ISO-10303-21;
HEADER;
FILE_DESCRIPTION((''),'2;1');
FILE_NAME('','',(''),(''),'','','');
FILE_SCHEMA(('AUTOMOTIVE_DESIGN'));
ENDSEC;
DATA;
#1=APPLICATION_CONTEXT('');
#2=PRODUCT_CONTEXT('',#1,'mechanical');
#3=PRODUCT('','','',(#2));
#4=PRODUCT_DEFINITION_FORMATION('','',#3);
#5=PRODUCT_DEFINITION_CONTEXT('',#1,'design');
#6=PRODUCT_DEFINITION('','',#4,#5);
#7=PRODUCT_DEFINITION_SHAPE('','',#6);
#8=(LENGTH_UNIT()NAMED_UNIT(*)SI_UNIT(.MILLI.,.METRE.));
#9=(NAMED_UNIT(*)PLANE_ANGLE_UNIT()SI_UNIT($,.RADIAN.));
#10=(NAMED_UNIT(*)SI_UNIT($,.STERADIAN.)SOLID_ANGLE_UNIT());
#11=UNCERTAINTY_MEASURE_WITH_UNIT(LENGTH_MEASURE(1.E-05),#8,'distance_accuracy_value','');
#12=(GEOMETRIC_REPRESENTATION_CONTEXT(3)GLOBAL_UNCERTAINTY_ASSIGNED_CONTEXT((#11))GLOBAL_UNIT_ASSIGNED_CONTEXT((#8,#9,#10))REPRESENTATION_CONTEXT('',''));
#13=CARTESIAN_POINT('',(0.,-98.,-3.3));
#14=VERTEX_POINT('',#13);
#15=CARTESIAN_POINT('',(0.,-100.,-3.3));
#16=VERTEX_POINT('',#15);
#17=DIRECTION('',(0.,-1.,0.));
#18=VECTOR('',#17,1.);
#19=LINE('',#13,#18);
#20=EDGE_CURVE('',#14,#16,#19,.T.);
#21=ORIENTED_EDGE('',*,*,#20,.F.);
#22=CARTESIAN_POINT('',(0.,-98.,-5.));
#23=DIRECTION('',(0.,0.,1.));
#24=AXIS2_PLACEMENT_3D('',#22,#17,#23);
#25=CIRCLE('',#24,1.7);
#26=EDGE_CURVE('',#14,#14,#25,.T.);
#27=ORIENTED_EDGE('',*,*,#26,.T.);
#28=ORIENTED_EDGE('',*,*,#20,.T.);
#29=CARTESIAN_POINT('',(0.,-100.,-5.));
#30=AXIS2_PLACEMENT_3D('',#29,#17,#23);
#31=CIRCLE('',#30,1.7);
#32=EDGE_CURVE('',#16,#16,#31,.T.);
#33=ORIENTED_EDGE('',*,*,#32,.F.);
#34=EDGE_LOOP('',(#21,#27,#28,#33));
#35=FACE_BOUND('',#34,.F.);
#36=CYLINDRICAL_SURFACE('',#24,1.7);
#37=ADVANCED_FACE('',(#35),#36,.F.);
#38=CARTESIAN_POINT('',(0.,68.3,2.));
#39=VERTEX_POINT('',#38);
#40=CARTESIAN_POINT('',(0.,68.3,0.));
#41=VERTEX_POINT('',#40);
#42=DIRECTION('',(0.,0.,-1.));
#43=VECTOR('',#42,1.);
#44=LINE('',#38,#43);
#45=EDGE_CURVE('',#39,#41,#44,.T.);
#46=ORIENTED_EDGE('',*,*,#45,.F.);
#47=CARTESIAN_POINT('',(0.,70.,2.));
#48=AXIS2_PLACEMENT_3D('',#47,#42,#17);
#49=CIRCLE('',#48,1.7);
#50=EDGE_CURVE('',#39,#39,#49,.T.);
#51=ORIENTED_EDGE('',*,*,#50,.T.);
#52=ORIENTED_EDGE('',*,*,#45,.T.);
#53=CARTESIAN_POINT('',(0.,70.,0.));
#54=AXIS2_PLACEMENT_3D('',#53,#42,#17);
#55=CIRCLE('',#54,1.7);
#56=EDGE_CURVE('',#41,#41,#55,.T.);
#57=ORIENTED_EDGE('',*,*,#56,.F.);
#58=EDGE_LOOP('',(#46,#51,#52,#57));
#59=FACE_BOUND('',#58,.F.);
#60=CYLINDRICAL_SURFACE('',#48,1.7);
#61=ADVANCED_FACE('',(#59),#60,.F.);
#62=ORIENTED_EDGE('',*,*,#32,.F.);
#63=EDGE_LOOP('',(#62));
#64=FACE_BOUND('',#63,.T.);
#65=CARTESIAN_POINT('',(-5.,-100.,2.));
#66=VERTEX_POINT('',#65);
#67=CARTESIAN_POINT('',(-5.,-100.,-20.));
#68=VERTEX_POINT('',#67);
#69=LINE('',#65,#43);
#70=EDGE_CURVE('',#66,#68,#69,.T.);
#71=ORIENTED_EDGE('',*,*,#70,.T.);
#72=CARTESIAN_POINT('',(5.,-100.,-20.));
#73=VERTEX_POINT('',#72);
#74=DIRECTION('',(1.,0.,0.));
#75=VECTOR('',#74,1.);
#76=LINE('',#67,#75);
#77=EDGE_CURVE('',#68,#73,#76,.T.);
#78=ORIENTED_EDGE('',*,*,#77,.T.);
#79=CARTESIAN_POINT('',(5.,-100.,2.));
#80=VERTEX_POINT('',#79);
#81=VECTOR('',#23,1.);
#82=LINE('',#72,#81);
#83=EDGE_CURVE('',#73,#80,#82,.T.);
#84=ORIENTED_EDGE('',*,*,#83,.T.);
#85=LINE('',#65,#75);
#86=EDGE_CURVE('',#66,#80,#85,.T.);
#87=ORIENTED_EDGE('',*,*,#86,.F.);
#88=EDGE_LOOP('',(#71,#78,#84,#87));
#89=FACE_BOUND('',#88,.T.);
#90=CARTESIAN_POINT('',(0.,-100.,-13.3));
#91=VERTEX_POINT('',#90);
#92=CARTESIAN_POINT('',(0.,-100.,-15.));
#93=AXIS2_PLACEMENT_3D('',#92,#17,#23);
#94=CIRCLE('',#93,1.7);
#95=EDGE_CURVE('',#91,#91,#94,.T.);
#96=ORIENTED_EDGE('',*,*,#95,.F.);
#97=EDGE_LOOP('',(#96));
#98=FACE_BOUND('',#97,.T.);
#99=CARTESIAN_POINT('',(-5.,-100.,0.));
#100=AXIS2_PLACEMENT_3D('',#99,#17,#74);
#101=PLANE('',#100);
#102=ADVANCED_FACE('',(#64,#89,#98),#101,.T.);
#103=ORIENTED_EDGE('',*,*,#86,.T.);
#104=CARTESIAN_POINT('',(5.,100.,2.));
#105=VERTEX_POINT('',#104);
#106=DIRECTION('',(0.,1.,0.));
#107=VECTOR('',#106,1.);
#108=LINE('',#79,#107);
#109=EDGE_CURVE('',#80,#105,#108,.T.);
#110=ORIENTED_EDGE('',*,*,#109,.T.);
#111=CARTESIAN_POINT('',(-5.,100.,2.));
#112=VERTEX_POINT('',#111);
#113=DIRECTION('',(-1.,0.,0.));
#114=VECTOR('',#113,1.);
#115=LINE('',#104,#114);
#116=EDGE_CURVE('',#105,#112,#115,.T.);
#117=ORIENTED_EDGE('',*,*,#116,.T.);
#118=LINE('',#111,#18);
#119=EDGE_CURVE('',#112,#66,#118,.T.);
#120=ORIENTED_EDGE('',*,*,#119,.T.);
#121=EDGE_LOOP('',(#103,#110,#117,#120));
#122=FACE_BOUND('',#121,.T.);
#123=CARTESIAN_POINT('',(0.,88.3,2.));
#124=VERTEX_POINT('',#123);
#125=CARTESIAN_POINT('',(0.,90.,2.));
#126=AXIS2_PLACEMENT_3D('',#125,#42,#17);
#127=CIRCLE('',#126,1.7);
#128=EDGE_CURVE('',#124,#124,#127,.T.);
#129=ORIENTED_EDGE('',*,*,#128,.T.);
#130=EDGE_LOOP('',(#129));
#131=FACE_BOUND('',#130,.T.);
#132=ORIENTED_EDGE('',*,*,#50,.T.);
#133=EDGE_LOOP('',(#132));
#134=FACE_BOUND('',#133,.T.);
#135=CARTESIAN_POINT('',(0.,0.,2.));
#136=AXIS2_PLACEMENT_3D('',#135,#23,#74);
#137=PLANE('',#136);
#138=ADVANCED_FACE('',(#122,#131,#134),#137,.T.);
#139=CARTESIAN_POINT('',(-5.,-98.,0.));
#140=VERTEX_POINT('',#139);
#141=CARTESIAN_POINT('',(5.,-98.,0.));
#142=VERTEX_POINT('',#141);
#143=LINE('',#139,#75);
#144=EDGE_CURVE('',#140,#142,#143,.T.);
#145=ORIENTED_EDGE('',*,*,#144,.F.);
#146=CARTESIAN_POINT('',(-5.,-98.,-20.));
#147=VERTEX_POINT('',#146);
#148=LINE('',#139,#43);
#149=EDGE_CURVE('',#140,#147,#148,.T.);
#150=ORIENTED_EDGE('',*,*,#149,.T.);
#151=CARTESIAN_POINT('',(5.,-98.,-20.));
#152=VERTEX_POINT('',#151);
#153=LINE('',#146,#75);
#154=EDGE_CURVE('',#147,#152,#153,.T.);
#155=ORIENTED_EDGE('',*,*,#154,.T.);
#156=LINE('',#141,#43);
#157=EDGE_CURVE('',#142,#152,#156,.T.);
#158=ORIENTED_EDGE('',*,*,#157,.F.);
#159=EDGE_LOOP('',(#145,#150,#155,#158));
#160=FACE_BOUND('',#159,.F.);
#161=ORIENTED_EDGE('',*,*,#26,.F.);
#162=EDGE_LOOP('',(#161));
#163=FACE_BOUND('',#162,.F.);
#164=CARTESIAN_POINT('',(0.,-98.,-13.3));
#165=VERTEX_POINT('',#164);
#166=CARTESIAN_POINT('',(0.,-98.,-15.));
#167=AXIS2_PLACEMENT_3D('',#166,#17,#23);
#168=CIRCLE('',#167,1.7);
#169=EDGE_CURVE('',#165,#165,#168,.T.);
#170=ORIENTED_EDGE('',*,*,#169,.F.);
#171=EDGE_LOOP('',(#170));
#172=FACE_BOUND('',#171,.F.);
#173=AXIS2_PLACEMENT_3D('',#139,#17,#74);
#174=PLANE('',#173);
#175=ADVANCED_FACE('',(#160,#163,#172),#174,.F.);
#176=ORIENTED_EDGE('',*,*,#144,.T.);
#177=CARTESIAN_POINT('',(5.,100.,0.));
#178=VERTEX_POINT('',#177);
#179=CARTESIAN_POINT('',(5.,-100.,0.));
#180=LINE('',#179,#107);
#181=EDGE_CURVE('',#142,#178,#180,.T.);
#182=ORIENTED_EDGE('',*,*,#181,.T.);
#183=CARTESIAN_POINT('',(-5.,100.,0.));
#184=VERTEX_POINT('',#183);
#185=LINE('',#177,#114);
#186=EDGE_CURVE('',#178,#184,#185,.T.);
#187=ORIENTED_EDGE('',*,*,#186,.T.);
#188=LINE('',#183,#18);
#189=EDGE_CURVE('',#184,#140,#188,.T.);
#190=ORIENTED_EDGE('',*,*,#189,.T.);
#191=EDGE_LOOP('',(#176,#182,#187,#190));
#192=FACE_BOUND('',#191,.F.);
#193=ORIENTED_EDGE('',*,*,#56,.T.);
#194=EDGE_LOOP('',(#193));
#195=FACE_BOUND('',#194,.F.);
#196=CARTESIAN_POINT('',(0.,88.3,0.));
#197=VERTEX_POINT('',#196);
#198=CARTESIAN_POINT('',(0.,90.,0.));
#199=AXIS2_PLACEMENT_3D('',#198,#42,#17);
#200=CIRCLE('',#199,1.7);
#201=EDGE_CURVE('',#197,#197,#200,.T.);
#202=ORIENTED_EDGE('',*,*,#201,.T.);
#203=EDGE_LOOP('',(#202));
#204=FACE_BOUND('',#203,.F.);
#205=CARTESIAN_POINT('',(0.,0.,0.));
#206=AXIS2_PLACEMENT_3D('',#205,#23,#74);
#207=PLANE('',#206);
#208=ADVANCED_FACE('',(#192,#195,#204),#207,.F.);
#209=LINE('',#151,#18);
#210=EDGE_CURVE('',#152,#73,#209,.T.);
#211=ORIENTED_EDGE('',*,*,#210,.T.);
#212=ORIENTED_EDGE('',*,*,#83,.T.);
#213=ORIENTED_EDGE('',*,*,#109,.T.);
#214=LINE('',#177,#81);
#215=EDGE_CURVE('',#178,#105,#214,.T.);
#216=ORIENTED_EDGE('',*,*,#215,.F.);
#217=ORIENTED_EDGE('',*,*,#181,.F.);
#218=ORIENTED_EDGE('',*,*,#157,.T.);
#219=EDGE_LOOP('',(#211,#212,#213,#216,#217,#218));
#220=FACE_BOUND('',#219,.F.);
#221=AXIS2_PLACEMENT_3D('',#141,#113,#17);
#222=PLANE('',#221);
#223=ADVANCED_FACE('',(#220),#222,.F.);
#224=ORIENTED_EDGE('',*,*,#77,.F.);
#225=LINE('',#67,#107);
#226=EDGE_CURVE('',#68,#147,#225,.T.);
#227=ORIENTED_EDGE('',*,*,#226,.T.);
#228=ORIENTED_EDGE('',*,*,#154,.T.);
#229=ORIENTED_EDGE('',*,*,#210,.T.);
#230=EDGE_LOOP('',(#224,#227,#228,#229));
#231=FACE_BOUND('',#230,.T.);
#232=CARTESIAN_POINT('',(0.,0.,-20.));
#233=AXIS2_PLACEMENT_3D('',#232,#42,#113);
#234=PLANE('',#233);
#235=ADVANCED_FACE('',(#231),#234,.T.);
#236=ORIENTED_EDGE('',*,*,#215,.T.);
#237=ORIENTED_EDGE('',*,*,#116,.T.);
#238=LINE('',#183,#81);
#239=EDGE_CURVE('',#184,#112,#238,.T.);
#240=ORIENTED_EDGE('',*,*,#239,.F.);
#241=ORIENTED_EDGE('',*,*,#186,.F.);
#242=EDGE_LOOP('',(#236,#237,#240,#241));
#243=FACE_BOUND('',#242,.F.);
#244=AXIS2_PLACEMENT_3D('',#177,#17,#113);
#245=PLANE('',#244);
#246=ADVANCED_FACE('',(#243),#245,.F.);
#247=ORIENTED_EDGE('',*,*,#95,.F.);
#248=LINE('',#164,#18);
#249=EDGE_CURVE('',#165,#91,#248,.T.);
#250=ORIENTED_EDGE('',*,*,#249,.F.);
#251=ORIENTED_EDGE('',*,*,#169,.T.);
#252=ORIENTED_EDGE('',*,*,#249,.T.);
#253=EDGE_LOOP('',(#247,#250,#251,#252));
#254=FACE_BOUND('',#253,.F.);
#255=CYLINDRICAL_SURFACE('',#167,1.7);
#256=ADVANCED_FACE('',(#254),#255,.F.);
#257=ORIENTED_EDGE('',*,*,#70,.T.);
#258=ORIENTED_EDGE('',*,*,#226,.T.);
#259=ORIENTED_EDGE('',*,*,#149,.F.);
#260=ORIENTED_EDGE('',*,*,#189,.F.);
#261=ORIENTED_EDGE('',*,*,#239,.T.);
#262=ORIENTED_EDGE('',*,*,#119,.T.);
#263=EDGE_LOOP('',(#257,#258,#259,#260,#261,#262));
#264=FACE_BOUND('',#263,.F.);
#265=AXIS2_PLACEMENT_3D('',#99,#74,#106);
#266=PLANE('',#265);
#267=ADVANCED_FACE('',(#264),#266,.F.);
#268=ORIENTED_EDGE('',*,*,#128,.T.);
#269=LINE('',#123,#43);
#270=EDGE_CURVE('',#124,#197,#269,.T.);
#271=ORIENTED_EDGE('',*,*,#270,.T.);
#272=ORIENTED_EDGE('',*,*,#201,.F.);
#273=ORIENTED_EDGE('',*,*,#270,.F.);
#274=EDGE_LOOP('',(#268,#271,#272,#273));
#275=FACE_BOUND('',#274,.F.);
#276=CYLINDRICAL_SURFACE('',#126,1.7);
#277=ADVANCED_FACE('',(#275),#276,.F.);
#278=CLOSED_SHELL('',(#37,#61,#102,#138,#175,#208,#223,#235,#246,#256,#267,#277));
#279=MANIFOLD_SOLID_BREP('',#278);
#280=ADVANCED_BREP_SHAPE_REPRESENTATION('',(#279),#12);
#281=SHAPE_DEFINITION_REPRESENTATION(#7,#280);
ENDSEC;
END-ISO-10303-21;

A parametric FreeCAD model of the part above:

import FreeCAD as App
import Part
import Sketcher
from FreeCAD import Vector

doc = App.newDocument("Part")
body = doc.addObject("PartDesign::Body", "Body")

# Sketch on XY plane
sketch1 = body.newObject("Sketcher::SketchObject", "Sketch")
sketch1.AttachmentSupport = (doc.getObject("XY_Plane"), [""])
sketch1.MapMode = "FlatFace"
sketch1.addGeometry([
    Part.LineSegment(Vector(-5, 100, 0), Vector(-5, -100, 0)),
    Part.LineSegment(Vector(-5, -100, 0), Vector(5, -100, 0)),
    Part.LineSegment(Vector(5, -100, 0), Vector(5, 100, 0)),
    Part.LineSegment(Vector(5, 100, 0), Vector(-5, 100, 0)),
], False)
sketch1.addConstraint([
    Sketcher.Constraint("Coincident", 0, 2, 1, 1),
    Sketcher.Constraint("Coincident", 1, 2, 2, 1),
    Sketcher.Constraint("Coincident", 2, 2, 3, 1),
    Sketcher.Constraint("Coincident", 3, 2, 0, 1),
    Sketcher.Constraint("Vertical", 0),
    Sketcher.Constraint("Horizontal", 1),
    Sketcher.Constraint("Vertical", 2),
    Sketcher.Constraint("Horizontal", 3),
    Sketcher.Constraint("Symmetric", 0, 2, 2, 2, -1, 1),
    Sketcher.Constraint("DistanceX", 1, 1, 1, 2, 10.0),
    Sketcher.Constraint("DistanceY", 0, 2, 0, 1, 200.0),
])
pad1 = body.newObject("PartDesign::Pad", "Pad")
pad1.Profile = sketch1
pad1.Length = 2

# Sketch on XY plane
sketch2 = body.newObject("Sketcher::SketchObject", "Sketch001")
sketch2.AttachmentSupport = (doc.getObject("XY_Plane"), [""])
sketch2.MapMode = "FlatFace"
sketch2.AttachmentOffset = App.Placement(Vector(0, 0, 2), App.Rotation())
sketch2.addGeometry([
    Part.Circle(Vector(0, 90, 0), Vector(0, 0, 1), 1.7),
    Part.Circle(Vector(0, 70, 0), Vector(0, 0, 1), 1.7),
], False)
sketch2.addConstraint([
    Sketcher.Constraint("Equal", 0, 1),
    Sketcher.Constraint("PointOnObject", 0, 3, -2),
    Sketcher.Constraint("PointOnObject", 1, 3, -2),
    Sketcher.Constraint("Diameter", 0, 3.4),
    Sketcher.Constraint("DistanceY", -1, 1, 0, 3, 90.0),
    Sketcher.Constraint("DistanceY", -1, 1, 1, 3, 70.0),
])
doc.recompute()
hole = body.newObject("PartDesign::Hole", "Hole")
hole.Profile = sketch2
hole.ThreadType = "None"
hole.Diameter = 3.4
hole.DepthType = "ThroughAll"

# Sketch on XY plane
sketch3 = body.newObject("Sketcher::SketchObject", "Sketch002")
sketch3.AttachmentSupport = (doc.getObject("XY_Plane"), [""])
sketch3.MapMode = "FlatFace"
sketch3.addGeometry([
    Part.LineSegment(Vector(5, -100, 0), Vector(-5, -100, 0)),
    Part.LineSegment(Vector(-5, -100, 0), Vector(-5, -98, 0)),
    Part.LineSegment(Vector(-5, -98, 0), Vector(5, -98, 0)),
    Part.LineSegment(Vector(5, -98, 0), Vector(5, -100, 0)),
], False)
sketch3.addConstraint([
    Sketcher.Constraint("Coincident", 0, 2, 1, 1),
    Sketcher.Constraint("Coincident", 1, 2, 2, 1),
    Sketcher.Constraint("Coincident", 2, 2, 3, 1),
    Sketcher.Constraint("Coincident", 3, 2, 0, 1),
    Sketcher.Constraint("Horizontal", 0),
    Sketcher.Constraint("Vertical", 1),
    Sketcher.Constraint("Horizontal", 2),
    Sketcher.Constraint("Vertical", 3),
    Sketcher.Constraint("DistanceY", 1, 1, 1, 2, 2.0),
    Sketcher.Constraint("DistanceX", 0, 2, 0, 1, 10.0),
    Sketcher.Constraint("DistanceX", 0, 2, -1, 1, 5.0),
    Sketcher.Constraint("DistanceY", 0, 2, -1, 1, 100.0),
])
pad2 = body.newObject("PartDesign::Pad", "Pad001")
pad2.Profile = sketch3
pad2.Length = 20
pad2.Reversed = True

# Sketch on XZ plane
sketch4 = body.newObject("Sketcher::SketchObject", "Sketch003")
sketch4.AttachmentSupport = (doc.getObject("XZ_Plane"), [""])
sketch4.MapMode = "FlatFace"
sketch4.AttachmentOffset = App.Placement(Vector(0, 0, 98), App.Rotation())
sketch4.addGeometry([
    Part.Circle(Vector(0, -15, 0), Vector(0, 0, 1), 1.7),
    Part.Circle(Vector(0, -5, 0), Vector(0, 0, 1), 1.7),
], False)
sketch4.addConstraint([
    Sketcher.Constraint("Equal", 0, 1),
    Sketcher.Constraint("PointOnObject", 0, 3, -2),
    Sketcher.Constraint("PointOnObject", 1, 3, -2),
    Sketcher.Constraint("Diameter", 0, 3.4),
    Sketcher.Constraint("DistanceY", 0, 3, -1, 1, 15.0),
    Sketcher.Constraint("DistanceY", 1, 3, -1, 1, 5.0),
])
doc.recompute()
hole2 = body.newObject("PartDesign::Hole", "Hole001")
hole2.Profile = sketch4
hole2.ThreadType = "None"
hole2.Diameter = 3.4
hole2.DepthType = "ThroughAll"
hole2.Reversed = True

doc.recompute()
